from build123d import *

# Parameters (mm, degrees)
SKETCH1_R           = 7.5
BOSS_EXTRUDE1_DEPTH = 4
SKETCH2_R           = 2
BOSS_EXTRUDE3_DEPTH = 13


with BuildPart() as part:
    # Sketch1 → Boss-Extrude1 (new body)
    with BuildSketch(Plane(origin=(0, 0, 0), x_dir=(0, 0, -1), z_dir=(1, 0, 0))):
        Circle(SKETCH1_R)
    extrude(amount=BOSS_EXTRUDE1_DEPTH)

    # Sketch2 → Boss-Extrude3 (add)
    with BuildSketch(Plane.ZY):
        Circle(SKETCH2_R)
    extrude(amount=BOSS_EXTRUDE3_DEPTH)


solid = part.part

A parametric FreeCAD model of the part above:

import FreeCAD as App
import Part
import Sketcher
Q = App.Units.Quantity

doc = App.newDocument("Part")
body = doc.addObject("PartDesign::Body", "Body")

# Sketch on YZ plane
sketch1 = body.newObject("Sketcher::SketchObject", "Sketch")
sketch1.AttachmentSupport = (doc.getObject("YZ_Plane"), [""])
sketch1.MapMode = "FlatFace"
sketch1.addGeometry(Part.Circle(App.Vector(0, 0, 0), App.Vector(0, 0, 1), 8), False)
sketch1.addConstraint([
    Sketcher.Constraint("Coincident", 0, 3, -1, 1),
    Sketcher.Constraint("Diameter", 0, Q("15 mm")),
])
pad1 = body.newObject("PartDesign::Pad", "Pad")
pad1.Profile = sketch1
pad1.Length = 4

# Sketch on YZ plane
sketch2 = body.newObject("Sketcher::SketchObject", "Sketch001")
sketch2.AttachmentSupport = (doc.getObject("YZ_Plane"), [""])
sketch2.MapMode = "FlatFace"
sketch2.addGeometry(Part.Circle(App.Vector(0, 0, 0), App.Vector(0, 0, 1), 2), False)
sketch2.addConstraint([
    Sketcher.Constraint("Coincident", 0, 3, -1, 1),
    Sketcher.Constraint("Diameter", 0, Q("4 mm")),
])
pad2 = body.newObject("PartDesign::Pad", "Pad001")
pad2.Profile = sketch2
pad2.Length = 13
pad2.Reversed = True

doc.recompute()
